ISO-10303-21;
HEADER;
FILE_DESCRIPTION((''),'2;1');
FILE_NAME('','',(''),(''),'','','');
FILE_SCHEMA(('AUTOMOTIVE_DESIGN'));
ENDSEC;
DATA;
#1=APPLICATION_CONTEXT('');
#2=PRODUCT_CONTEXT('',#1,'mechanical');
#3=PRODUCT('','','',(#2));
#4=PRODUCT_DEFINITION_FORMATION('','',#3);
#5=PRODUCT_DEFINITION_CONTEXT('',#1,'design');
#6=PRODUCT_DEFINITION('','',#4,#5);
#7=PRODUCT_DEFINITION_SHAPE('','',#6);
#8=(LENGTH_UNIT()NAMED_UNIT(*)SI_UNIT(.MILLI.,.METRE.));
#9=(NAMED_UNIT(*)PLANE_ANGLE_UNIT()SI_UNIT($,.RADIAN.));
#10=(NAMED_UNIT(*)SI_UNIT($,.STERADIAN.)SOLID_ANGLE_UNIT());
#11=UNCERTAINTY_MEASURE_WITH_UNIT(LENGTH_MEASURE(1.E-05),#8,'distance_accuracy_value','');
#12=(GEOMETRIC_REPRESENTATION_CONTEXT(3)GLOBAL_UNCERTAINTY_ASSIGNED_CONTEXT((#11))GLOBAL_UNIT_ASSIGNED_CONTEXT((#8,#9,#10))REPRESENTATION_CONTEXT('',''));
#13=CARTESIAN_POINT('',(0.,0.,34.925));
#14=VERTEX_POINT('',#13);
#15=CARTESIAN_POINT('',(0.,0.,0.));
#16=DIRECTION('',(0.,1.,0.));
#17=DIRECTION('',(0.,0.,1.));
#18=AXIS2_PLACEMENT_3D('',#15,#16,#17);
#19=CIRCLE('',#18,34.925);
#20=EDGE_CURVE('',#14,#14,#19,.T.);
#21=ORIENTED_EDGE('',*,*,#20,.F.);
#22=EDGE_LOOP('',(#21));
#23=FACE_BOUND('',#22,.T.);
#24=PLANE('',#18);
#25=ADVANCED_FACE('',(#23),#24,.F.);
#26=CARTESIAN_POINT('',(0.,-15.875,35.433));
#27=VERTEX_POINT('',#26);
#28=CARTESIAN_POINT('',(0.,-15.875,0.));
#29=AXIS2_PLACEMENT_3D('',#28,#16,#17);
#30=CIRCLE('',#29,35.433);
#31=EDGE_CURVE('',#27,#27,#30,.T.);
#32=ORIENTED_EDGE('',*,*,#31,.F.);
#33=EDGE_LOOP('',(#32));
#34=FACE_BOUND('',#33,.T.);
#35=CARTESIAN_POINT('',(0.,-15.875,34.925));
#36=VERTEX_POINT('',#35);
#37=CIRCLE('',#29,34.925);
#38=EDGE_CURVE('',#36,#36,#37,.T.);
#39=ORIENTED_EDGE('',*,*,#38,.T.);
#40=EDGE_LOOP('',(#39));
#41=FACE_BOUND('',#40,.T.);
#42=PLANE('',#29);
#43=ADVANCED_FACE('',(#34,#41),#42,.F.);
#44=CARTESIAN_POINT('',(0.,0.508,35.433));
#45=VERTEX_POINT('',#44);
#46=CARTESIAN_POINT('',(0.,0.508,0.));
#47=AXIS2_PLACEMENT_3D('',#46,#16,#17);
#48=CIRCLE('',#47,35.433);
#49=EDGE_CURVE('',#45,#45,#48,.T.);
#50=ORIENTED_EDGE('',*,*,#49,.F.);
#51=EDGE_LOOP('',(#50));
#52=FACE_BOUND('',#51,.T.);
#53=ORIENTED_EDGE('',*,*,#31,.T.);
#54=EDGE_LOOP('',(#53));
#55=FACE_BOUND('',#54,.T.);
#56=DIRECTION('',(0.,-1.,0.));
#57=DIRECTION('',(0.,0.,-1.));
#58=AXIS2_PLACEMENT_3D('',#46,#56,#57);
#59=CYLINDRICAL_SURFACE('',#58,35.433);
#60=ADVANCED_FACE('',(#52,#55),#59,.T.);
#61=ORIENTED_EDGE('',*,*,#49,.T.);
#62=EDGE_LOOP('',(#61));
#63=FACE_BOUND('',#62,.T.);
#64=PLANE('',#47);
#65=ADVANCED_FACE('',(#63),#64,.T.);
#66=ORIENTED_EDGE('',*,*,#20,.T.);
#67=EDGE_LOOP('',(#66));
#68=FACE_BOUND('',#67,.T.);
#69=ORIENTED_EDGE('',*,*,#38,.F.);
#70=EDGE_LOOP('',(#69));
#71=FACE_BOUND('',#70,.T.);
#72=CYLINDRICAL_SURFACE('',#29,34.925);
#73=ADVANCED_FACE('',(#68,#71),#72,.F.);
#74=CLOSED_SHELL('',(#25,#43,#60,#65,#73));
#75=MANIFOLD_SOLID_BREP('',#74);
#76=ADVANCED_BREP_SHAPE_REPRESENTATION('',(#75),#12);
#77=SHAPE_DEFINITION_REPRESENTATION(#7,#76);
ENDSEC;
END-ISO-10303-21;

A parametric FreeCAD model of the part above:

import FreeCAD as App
import Part
import Sketcher

V = App.Vector
Q = App.Units.Quantity

doc = App.newDocument("Part")
body = doc.addObject("PartDesign::Body", "Body")

sketch1 = body.newObject("Sketcher::SketchObject", "Sketch")
sketch1.AttachmentSupport = (doc.getObject("XZ_Plane"), [""])
sketch1.MapMode = "FlatFace"
sketch1.addGeometry(Part.Circle(V(0, 0, 0), V(0, 0, 1), 35), False)
sketch1.addConstraint(Sketcher.Constraint("Coincident", 0, 3, -1, 1))
sketch1.addConstraint(Sketcher.Constraint("Diameter", 0, Q("2.79 in")))
pad1 = body.newObject("PartDesign::Pad", "Pad")
pad1.Profile = sketch1
pad1.Length = Q("0.02 in")
pad1.Reversed = True

sketch2 = body.newObject("Sketcher::SketchObject", "Sketch001")
sketch2.AttachmentSupport = (doc.getObject("XZ_Plane"), [""])
sketch2.MapMode = "FlatFace"
sketch2.AttachmentOffset = App.Placement(V(0, 0, 0.625 * 25.4), App.Rotation())
sketch2.addGeometry(Part.Circle(V(0, 0, 0), V(0, 0, 1), 35), False)
sketch2.addGeometry(Part.Circle(V(0, 0, 0), V(0, 0, 1), 35), False)
sketch2.addConstraint(Sketcher.Constraint("Coincident", 0, 3, -1, 1))
sketch2.addConstraint(Sketcher.Constraint("Coincident", 1, 3, -1, 1))
sketch2.addConstraint(Sketcher.Constraint("Diameter", 0, Q("2.79 in")))
sketch2.addConstraint(Sketcher.Constraint("Diameter", 1, Q("2.75 in")))
pad2 = body.newObject("PartDesign::Pad", "Pad001")
pad2.Profile = sketch2
pad2.Length = Q("0.625 in")
pad2.Reversed = True

doc.recompute()
